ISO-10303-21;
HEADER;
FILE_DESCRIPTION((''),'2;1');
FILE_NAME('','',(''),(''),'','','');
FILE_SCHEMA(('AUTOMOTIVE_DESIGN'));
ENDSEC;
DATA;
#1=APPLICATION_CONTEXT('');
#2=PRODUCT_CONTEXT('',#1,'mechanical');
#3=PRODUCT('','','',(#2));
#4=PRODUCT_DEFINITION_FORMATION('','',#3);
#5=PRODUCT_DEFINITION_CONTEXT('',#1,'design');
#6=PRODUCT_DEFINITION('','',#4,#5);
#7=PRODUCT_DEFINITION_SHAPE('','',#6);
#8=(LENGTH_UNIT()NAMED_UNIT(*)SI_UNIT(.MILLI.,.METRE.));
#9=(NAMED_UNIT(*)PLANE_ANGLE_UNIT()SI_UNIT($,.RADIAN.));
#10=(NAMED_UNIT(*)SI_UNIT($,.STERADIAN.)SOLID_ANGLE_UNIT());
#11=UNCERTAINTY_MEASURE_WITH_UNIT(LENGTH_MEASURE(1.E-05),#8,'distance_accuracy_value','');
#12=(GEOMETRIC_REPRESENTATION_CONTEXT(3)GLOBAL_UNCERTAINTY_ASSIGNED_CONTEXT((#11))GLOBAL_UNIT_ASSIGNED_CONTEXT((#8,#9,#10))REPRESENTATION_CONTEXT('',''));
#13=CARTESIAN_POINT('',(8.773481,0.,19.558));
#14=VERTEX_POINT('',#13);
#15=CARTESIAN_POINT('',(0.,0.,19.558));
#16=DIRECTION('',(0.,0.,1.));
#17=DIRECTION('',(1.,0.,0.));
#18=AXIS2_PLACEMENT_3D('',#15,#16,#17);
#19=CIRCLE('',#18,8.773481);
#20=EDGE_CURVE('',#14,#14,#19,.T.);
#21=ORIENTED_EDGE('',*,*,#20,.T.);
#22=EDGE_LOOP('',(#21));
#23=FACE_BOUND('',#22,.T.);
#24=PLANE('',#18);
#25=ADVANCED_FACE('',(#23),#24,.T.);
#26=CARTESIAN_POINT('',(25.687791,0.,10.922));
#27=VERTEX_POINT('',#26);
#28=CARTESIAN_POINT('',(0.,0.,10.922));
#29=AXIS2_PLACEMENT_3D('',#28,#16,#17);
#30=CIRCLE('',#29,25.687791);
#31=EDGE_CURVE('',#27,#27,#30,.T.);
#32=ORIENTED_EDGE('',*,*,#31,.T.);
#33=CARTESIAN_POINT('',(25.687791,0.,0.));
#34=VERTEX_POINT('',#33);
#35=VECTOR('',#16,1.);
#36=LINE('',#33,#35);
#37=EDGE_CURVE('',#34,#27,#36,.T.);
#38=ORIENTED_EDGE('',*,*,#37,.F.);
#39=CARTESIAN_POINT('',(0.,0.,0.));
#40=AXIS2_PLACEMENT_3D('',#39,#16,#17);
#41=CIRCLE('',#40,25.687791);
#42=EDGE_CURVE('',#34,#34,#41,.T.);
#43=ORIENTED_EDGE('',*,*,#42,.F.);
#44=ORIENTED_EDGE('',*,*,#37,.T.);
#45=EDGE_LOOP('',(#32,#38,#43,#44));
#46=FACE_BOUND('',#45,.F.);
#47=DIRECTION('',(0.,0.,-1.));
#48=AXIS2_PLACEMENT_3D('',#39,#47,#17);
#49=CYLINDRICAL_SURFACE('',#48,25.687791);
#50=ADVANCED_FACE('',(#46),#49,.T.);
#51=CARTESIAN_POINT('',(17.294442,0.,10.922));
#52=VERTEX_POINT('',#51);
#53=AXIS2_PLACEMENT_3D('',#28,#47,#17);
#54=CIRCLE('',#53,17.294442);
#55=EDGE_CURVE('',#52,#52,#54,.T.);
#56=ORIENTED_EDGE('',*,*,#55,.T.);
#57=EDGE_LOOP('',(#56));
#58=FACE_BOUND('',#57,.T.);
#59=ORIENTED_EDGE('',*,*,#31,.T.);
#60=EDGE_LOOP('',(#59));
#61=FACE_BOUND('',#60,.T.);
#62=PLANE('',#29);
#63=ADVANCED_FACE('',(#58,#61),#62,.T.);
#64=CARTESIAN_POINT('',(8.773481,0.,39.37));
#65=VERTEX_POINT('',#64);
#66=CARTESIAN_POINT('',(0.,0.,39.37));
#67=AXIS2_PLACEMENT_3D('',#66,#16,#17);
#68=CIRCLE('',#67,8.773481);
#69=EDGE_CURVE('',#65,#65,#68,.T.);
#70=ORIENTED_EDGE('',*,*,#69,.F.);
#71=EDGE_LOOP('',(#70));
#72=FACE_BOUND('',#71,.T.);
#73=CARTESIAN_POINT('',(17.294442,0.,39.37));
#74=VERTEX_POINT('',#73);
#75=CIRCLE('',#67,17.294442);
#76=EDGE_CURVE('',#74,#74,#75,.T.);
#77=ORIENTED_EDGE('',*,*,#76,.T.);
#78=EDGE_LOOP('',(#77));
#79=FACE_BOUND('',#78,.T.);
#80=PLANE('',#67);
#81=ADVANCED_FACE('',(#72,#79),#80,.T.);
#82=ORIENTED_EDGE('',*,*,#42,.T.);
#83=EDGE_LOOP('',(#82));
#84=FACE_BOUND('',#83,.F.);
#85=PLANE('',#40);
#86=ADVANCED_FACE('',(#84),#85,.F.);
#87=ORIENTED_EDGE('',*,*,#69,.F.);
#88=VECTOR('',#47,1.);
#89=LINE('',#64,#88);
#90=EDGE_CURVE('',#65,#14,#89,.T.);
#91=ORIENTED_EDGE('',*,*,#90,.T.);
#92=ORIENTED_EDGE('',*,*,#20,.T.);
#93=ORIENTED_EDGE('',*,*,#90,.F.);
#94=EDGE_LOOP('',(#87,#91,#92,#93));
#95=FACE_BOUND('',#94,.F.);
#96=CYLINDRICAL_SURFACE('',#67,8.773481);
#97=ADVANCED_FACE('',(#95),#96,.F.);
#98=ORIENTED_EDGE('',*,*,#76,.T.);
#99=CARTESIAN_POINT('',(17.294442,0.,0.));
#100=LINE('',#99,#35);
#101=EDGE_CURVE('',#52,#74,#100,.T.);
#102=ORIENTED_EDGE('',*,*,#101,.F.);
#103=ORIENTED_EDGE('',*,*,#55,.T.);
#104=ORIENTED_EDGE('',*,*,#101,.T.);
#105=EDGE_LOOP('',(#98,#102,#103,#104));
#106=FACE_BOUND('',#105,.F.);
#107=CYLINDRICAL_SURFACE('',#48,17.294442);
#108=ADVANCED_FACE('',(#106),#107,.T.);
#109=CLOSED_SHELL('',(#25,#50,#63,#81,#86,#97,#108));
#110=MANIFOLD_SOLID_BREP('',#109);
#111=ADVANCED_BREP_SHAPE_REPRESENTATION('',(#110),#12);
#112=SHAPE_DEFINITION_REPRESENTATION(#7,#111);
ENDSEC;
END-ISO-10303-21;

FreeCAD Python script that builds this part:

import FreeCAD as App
import Part
import Sketcher
from FreeCAD import Vector
Q = App.Units.Quantity

doc = App.newDocument("Part")
body = doc.addObject("PartDesign::Body", "Body")

# Sketch on XY plane
sketch1 = body.newObject("Sketcher::SketchObject", "Sketch")
sketch1.AttachmentSupport = (doc.getObject("XY_Plane"), [""])
sketch1.MapMode = "FlatFace"
sketch1.addGeometry(Part.Circle(Vector(0, 0, 0), Vector(0, 0, 1), 26), False)
sketch1.addConstraint([
    Sketcher.Constraint("Coincident", 0, 3, -1, 1),
    Sketcher.Constraint("Diameter", 0, Q("51.375582 mm")),
])
pad1 = body.newObject("PartDesign::Pad", "Pad")
pad1.Profile = sketch1
pad1.Length = Q("0.43 in")

# Sketch on XY plane
sketch2 = body.newObject("Sketcher::SketchObject", "Sketch001")
sketch2.AttachmentSupport = (doc.getObject("XY_Plane"), [""])
sketch2.MapMode = "FlatFace"
sketch2.addGeometry(Part.Circle(Vector(0, 0, 0), Vector(0, 0, 1), 17), False)
sketch2.addConstraint([
    Sketcher.Constraint("Coincident", 0, 3, -1, 1),
    Sketcher.Constraint("Diameter", 0, Q("34.588884 mm")),
])
pad2 = body.newObject("PartDesign::Pad", "Pad001")
pad2.Profile = sketch2
pad2.Length = Q("1.55 in")

# Sketch on XY plane
sketch3 = body.newObject("Sketcher::SketchObject", "Sketch002")
sketch3.AttachmentSupport = (doc.getObject("XY_Plane"), [""])
sketch3.MapMode = "FlatFace"
sketch3.AttachmentOffset = App.Placement(Vector(0, 0, 1.55 * 25.4), App.Rotation())
sketch3.addGeometry(Part.Circle(Vector(0, 0, 0), Vector(0, 0, 1), 9), False)
sketch3.addConstraint([
    Sketcher.Constraint("Coincident", 0, 3, -1, 1),
    Sketcher.Constraint("Diameter", 0, Q("17.546962 mm")),
])
pocket1 = body.newObject("PartDesign::Pocket", "Pocket")
pocket1.Profile = sketch3
pocket1.Length = Q("0.78 in")

doc.recompute()
